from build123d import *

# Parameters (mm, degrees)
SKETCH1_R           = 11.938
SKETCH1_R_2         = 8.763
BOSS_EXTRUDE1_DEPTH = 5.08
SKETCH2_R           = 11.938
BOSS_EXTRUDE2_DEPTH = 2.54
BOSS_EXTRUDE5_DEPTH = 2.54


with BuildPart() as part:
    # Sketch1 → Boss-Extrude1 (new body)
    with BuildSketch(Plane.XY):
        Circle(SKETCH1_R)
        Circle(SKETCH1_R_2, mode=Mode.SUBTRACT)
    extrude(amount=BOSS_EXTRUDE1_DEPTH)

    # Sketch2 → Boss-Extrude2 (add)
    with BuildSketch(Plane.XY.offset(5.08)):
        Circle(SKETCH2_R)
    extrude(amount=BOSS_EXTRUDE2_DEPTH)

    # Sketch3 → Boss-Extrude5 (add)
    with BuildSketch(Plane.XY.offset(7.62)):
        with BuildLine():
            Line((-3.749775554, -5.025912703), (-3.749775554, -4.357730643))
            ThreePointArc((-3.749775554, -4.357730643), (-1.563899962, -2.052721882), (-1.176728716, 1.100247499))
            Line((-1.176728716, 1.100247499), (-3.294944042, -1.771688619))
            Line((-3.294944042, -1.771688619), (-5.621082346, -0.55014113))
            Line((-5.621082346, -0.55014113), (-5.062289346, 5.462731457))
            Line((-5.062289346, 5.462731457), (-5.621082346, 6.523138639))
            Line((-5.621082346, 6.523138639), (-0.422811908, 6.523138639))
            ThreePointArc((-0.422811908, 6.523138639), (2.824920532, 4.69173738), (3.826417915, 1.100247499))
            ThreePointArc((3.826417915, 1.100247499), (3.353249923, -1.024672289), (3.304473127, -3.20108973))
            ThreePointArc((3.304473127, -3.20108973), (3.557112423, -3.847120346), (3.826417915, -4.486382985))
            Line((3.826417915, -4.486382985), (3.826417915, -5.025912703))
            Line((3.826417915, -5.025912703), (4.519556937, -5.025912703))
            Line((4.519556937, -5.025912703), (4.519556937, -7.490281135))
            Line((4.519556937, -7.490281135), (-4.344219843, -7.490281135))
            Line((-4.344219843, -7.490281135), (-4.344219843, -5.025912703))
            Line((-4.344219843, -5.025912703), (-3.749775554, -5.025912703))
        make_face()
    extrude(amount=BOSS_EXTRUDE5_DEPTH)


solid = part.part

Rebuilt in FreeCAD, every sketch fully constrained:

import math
import FreeCAD as App
import Part
import Sketcher
Q = App.Units.Quantity

doc = App.newDocument("Part")
body = doc.addObject("PartDesign::Body", "Body")

# Sketch on XY plane
sketch1 = body.newObject("Sketcher::SketchObject", "Sketch")
sketch1.AttachmentSupport = (doc.getObject("XY_Plane"), [""])
sketch1.MapMode = "FlatFace"
sketch1.addGeometry([
    Part.Circle(App.Vector(0, 0, 0), App.Vector(0, 0, 1), 12),
    Part.Circle(App.Vector(0, 0, 0), App.Vector(0, 0, 1), 9),
], False)
sketch1.addConstraint([
    Sketcher.Constraint("Coincident", 0, 3, -1, 1),
    Sketcher.Constraint("Coincident", 1, 3, -1, 1),
    Sketcher.Constraint("Diameter", 0, Q("0.94 in")),
    Sketcher.Constraint("Diameter", 1, Q("0.69 in")),
])
pad1 = body.newObject("PartDesign::Pad", "Pad")
pad1.Profile = sketch1
pad1.Length = Q("0.2 in")

# Sketch on XY plane
sketch2 = body.newObject("Sketcher::SketchObject", "Sketch001")
sketch2.AttachmentSupport = (doc.getObject("XY_Plane"), [""])
sketch2.MapMode = "FlatFace"
sketch2.AttachmentOffset = App.Placement(App.Vector(0, 0, 0.2 * 25.4), App.Rotation())
sketch2.addGeometry(Part.Circle(App.Vector(0, 0, 0), App.Vector(0, 0, 1), 12), False)
sketch2.addConstraint([
    Sketcher.Constraint("Coincident", 0, 3, -1, 1),
    Sketcher.Constraint("Diameter", 0, Q("0.94 in")),
])
pad2 = body.newObject("PartDesign::Pad", "Pad001")
pad2.Profile = sketch2
pad2.Length = Q("0.1 in")

# Sketch on XY plane
sketch3 = body.newObject("Sketcher::SketchObject", "Sketch002")
sketch3.AttachmentSupport = (doc.getObject("XY_Plane"), [""])
sketch3.MapMode = "FlatFace"
sketch3.AttachmentOffset = App.Placement(App.Vector(0, 0, 0.3 * 25.4), App.Rotation())
sketch3.addGeometry([
    Part.LineSegment(App.Vector(-3.7, -4.4, 0), App.Vector(-3.7, -5, 0)),  # 0
    Part.LineSegment(App.Vector(-3.7, -5, 0), App.Vector(-4.3, -5, 0)),  # 1
    Part.LineSegment(App.Vector(-4.3, -5, 0), App.Vector(-4.3, -7.5, 0)),  # 2
    Part.LineSegment(App.Vector(-4.3, -7.5, 0), App.Vector(4.5, -7.5, 0)),  # 3
    Part.LineSegment(App.Vector(4.5, -7.5, 0), App.Vector(4.5, -5, 0)),  # 4
    Part.LineSegment(App.Vector(4.5, -5, 0), App.Vector(3.8, -5, 0)),  # 5
    Part.LineSegment(App.Vector(3.8, -5, 0), App.Vector(3.8, -4.5, 0)),  # 6
    Part.ArcOfCircle(Part.Circle(App.Vector(28.3, 6.2, 0), App.Vector(0, 0, 1), 26.8), math.radians(-159.38), math.radians(-156.41)),  # 7
    Part.ArcOfCircle(Part.Circle(App.Vector(14.4, -2.4, 0), App.Vector(0, 0, 1), 11.1), math.radians(162), math.radians(184)),  # 8
    Part.ArcOfCircle(Part.Circle(App.Vector(-1, 1.7, 0), App.Vector(0, 0, 1), 4.9), math.radians(-7), math.radians(83)),  # 9
    Part.LineSegment(App.Vector(-0.4, 6.5, 0), App.Vector(-5.6, 6.5, 0)),  # 10
    Part.LineSegment(App.Vector(-5.6, 6.5, 0), App.Vector(-5.1, 5.5, 0)),  # 11
    Part.LineSegment(App.Vector(-5.1, 5.5, 0), App.Vector(-5.6, -0.6, 0)),  # 12
    Part.LineSegment(App.Vector(-5.6, -0.6, 0), App.Vector(-3.3, -1.8, 0)),  # 13
    Part.LineSegment(App.Vector(-3.3, -1.8, 0), App.Vector(-1.2, 1.1, 0)),  # 14
    Part.ArcOfCircle(Part.Circle(App.Vector(-6.2, 0.1, 0), App.Vector(0, 0, 1), 5.1), math.radians(-62), math.radians(11)),  # 15
], False)
sketch3.addConstraint([
    Sketcher.Constraint("Coincident", 0, 2, 1, 1),
    Sketcher.Constraint("Coincident", 1, 2, 2, 1),
    Sketcher.Constraint("Coincident", 2, 2, 3, 1),
    Sketcher.Constraint("Coincident", 3, 2, 4, 1),
    Sketcher.Constraint("Coincident", 4, 2, 5, 1),
    Sketcher.Constraint("Coincident", 5, 2, 6, 1),
    Sketcher.Constraint("Coincident", 6, 2, 7, 2),
    Sketcher.Constraint("Coincident", 7, 1, 8, 2),
    Sketcher.Constraint("Coincident", 8, 1, 9, 1),
    Sketcher.Constraint("Coincident", 9, 2, 10, 1),
    Sketcher.Constraint("Coincident", 10, 2, 11, 1),
    Sketcher.Constraint("Coincident", 11, 2, 12, 1),
    Sketcher.Constraint("Coincident", 12, 2, 13, 1),
    Sketcher.Constraint("Coincident", 13, 2, 14, 1),
    Sketcher.Constraint("Coincident", 14, 2, 15, 2),
    Sketcher.Constraint("Coincident", 15, 1, 0, 1),
    Sketcher.Constraint("Vertical", 0),
    Sketcher.Constraint("Horizontal", 1),
    Sketcher.Constraint("Vertical", 2),
    Sketcher.Constraint("Horizontal", 3),
    Sketcher.Constraint("Vertical", 4),
    Sketcher.Constraint("Horizontal", 5),
    Sketcher.Constraint("Vertical", 6),
    Sketcher.Constraint("Horizontal", 10),
    Sketcher.Constraint("Horizontal", 1, 2, 4, 2),
    Sketcher.Constraint("Horizontal", 8, 1, 14, 2),
    Sketcher.Constraint("Vertical", 6, 2, 8, 1),
    Sketcher.Constraint("Vertical", 10, 2, 12, 2),
    Sketcher.Constraint("Radius", 7, 26.750199),
    Sketcher.Constraint("Radius", 8, 11.085672),
    Sketcher.Constraint("Radius", 9, 4.871535),
    Sketcher.Constraint("Radius", 15, 5.074583),
    Sketcher.Constraint("DistanceX", 5, 2, 5, 1, 0.693139),
    Sketcher.Constraint("DistanceX", 10, 2, 10, 1, 5.19827),
    Sketcher.Constraint("DistanceY", 2, 2, 2, 1, 2.464368),
    Sketcher.Constraint("DistanceY", 6, 1, 6, 2, 0.53953),
    Sketcher.Constraint("DistanceY", 15, 3, 9, 3, 1.5759),
    Sketcher.Constraint("DistanceX", 9, 3, 3, 2, 5.5292),
    Sketcher.Constraint("DistanceX", 10, 2, 8, 1, 9.4475),
    Sketcher.Constraint("DistanceX", 15, 3, 11, 2, 1.091701),
    Sketcher.Constraint("DistanceX", 13, 2, 9, 3, 2.285301),
    Sketcher.Constraint("Distance", 11, 1.19863),
    Sketcher.Constraint("Distance", 12, 6.038782),
    Sketcher.Constraint("DistanceX", 1, 2, 1, 1, 0.594444),
    Sketcher.Constraint("DistanceX", 3, 1, 3, 2, 8.863777),
    Sketcher.Constraint("DistanceY", 0, 2, 0, 1, 0.668182),
    Sketcher.Constraint("DistanceX", -1, 1, 7, 3, 28.34166),
    Sketcher.Constraint("DistanceY", -1, 1, 9, 3, 1.687078),
    Sketcher.Constraint("DistanceX", 15, 3, -1, 1, 6.15399),
    Sketcher.Constraint("DistanceX", 1, 2, -1, 1, 4.34422),
    Sketcher.Constraint("DistanceY", 7, 1, -1, 1, 3.20109),
    Sketcher.Constraint("DistanceY", 13, 2, -1, 1, 1.771689),
])
pad3 = body.newObject("PartDesign::Pad", "Pad002")
pad3.Profile = sketch3
pad3.Length = Q("0.1 in")

doc.recompute()
